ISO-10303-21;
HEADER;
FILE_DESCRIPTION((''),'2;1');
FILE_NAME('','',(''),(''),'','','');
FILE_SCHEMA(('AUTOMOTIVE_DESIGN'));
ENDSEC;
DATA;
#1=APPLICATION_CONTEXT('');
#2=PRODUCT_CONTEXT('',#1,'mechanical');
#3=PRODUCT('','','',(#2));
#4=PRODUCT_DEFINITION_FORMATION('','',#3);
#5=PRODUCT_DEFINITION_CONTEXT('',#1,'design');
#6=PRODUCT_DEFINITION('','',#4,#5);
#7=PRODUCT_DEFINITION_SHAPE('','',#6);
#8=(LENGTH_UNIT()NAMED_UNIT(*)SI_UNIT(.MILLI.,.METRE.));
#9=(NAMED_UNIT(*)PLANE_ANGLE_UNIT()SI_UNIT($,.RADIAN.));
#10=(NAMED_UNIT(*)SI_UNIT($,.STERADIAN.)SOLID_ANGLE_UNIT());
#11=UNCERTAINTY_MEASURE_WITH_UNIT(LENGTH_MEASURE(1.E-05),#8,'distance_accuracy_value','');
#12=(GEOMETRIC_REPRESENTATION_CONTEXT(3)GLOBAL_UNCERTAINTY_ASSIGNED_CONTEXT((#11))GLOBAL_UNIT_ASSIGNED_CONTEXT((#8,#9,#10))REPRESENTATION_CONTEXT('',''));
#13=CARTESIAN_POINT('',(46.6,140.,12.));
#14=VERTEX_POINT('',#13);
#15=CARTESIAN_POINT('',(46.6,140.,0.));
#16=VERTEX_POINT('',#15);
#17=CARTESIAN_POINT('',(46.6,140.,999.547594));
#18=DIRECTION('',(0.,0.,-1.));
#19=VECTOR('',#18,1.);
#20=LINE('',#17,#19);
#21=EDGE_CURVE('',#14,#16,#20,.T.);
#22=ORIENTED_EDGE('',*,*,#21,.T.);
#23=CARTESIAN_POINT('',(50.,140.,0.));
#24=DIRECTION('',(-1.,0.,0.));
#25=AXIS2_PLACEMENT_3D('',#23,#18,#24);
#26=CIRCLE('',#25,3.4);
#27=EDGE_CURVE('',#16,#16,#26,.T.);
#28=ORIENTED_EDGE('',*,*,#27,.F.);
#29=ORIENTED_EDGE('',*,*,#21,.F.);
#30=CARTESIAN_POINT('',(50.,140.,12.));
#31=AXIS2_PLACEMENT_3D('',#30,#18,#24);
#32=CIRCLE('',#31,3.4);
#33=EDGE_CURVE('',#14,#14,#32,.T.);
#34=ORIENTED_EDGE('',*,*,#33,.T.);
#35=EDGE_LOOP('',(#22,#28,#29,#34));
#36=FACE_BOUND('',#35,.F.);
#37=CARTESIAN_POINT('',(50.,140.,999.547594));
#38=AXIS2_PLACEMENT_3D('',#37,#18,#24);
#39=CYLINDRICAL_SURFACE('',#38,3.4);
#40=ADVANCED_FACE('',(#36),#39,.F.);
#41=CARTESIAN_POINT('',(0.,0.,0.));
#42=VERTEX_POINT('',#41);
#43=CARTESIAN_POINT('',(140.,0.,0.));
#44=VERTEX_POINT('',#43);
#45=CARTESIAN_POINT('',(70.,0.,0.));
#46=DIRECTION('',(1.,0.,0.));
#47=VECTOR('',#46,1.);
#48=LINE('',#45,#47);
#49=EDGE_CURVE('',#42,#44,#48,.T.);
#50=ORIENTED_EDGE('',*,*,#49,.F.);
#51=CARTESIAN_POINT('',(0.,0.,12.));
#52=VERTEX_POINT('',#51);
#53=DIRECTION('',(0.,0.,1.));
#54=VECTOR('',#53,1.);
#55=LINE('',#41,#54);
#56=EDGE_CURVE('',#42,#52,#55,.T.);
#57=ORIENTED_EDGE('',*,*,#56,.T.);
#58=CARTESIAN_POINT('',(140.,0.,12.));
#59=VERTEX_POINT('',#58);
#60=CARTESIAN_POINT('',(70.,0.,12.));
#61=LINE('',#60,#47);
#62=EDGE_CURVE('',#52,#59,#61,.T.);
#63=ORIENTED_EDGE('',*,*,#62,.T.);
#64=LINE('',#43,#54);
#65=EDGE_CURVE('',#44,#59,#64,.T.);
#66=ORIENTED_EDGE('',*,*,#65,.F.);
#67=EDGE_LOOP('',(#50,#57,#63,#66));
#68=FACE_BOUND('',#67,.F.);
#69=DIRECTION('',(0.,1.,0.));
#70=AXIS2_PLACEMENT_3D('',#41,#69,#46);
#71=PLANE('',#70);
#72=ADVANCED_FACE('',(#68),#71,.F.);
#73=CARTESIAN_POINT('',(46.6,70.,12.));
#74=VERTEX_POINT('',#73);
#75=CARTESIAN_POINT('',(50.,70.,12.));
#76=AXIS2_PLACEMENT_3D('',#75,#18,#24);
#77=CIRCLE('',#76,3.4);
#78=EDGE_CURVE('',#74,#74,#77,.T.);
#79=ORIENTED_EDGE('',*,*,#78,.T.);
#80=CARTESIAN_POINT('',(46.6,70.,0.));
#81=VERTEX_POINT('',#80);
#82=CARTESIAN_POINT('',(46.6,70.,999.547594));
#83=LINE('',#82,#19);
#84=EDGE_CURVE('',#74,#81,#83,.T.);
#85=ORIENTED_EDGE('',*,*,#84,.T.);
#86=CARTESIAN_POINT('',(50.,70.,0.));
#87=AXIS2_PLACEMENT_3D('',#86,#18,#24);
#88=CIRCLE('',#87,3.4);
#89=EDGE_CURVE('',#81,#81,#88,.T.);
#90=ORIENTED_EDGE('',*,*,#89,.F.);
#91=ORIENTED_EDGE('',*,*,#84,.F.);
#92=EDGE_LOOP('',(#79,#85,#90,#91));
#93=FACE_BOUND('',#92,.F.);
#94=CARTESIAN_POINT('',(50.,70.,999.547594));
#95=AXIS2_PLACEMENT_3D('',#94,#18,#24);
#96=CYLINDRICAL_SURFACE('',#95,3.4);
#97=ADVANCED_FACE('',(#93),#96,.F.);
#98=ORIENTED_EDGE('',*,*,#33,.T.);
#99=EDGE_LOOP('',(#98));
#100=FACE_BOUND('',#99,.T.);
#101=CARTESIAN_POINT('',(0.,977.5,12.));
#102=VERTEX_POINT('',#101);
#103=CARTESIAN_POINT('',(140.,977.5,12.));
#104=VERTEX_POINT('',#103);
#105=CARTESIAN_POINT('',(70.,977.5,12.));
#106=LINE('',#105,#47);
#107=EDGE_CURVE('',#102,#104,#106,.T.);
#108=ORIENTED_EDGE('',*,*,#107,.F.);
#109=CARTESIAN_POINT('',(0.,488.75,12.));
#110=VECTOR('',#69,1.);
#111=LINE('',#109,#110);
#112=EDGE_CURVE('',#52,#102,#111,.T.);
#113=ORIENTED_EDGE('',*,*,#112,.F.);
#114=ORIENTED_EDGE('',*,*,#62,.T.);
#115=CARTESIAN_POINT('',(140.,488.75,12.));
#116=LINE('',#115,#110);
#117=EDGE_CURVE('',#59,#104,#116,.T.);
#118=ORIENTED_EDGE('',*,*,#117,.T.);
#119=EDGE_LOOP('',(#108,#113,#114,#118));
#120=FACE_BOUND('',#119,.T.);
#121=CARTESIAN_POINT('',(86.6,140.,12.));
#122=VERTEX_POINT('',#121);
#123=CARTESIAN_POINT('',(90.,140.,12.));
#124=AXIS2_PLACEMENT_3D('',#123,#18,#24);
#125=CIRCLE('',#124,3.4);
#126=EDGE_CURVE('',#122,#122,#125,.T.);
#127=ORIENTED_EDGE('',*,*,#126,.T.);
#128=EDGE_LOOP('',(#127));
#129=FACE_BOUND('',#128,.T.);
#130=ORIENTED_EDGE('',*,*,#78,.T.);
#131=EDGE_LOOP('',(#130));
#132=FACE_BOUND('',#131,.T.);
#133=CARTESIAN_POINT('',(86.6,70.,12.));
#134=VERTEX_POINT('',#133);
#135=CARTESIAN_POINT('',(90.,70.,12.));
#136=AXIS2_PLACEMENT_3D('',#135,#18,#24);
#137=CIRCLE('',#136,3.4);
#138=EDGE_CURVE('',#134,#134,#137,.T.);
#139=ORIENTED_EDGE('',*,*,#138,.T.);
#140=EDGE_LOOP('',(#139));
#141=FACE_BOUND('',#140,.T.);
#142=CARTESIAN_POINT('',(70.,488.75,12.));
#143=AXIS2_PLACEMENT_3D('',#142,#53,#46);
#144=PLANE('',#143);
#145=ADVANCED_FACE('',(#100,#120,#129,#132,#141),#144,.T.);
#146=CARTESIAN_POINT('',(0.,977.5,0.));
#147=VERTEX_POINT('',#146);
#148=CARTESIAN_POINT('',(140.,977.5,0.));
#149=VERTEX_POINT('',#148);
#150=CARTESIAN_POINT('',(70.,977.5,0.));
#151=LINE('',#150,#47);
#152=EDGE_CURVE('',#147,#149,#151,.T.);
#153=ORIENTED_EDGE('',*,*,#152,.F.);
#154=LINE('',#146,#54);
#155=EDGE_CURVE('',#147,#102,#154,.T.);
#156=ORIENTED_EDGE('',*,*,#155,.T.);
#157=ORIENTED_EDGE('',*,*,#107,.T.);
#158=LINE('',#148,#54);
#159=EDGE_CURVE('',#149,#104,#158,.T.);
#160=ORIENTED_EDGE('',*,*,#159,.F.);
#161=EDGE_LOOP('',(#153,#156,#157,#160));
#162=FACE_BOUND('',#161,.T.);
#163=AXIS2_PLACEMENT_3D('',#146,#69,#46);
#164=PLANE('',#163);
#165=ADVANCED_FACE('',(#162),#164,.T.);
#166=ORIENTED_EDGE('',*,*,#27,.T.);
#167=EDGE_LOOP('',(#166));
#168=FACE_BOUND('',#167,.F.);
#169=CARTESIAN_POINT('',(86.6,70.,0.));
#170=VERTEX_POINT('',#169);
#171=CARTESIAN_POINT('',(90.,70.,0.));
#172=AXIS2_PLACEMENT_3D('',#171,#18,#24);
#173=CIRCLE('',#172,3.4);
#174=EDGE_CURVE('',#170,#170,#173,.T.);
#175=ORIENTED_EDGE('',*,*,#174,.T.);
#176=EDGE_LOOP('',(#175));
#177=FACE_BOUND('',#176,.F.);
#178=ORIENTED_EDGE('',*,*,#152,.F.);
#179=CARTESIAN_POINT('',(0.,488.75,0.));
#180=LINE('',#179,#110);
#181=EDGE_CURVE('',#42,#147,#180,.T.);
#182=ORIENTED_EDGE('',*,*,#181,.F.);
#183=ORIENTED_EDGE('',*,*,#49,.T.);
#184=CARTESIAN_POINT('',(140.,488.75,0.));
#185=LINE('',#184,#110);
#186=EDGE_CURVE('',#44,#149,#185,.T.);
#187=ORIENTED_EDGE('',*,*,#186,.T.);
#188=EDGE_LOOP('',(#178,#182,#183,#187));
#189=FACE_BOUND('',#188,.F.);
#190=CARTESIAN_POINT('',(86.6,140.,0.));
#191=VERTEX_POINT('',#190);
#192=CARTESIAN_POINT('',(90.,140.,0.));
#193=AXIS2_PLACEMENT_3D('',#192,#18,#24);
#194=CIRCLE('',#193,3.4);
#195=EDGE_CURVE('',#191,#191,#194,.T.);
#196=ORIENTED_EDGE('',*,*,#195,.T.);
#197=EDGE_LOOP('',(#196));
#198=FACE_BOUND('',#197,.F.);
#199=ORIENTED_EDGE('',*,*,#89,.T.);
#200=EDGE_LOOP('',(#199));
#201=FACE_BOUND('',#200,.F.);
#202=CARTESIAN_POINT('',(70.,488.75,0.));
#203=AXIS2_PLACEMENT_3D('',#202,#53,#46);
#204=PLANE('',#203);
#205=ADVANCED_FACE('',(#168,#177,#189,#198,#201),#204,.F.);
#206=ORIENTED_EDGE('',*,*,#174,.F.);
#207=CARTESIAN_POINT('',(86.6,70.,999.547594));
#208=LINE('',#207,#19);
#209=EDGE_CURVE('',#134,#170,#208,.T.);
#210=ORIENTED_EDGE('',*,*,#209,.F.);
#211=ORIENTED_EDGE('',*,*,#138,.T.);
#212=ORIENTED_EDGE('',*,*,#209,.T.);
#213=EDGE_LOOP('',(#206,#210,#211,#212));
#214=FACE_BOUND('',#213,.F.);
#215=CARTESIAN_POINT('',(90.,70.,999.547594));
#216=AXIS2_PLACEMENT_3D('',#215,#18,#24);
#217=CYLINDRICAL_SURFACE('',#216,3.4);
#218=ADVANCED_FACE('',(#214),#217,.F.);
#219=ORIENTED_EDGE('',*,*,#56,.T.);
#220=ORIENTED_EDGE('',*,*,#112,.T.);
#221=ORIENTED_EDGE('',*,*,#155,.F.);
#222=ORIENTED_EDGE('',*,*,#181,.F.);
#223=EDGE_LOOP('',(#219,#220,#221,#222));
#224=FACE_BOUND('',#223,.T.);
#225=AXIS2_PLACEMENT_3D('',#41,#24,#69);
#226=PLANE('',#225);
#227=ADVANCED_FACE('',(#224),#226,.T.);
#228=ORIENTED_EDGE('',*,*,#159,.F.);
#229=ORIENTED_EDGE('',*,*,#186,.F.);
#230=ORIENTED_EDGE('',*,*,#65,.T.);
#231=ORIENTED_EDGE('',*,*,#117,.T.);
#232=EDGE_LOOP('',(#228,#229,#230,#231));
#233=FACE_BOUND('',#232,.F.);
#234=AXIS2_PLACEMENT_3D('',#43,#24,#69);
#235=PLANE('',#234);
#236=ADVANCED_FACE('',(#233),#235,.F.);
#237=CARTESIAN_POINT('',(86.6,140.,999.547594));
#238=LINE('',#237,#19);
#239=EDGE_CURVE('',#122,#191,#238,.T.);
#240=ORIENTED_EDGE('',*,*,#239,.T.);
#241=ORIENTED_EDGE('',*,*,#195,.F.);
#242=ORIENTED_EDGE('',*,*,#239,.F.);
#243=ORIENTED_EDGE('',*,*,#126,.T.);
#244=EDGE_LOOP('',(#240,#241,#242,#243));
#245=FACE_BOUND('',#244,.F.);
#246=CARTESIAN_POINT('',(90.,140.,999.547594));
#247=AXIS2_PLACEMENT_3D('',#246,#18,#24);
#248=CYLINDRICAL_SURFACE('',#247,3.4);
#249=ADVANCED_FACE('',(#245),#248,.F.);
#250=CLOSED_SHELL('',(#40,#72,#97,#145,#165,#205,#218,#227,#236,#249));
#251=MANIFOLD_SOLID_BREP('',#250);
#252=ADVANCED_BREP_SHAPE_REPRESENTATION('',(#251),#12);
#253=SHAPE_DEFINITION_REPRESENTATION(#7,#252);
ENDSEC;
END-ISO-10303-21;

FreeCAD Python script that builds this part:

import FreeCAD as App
import Part
import Sketcher
Q = App.Units.Quantity


def add_polygon(sketch, points):
    """Adds a closed chain of lines whose ends are joined by coincident constraints."""
    first, n = sketch.GeometryCount, len(points)
    for a, b in zip(points, points[1:] + points[:1]):
        sketch.addGeometry(Part.LineSegment(App.Vector(*a, 0), App.Vector(*b, 0)), False)
    for i in range(n):
        sketch.addConstraint(Sketcher.Constraint("Coincident", first + i, 2, first + (i + 1) % n, 1))

doc = App.newDocument("Part")
body = doc.addObject("PartDesign::Body", "Body")

# Sketch on XY plane
sketch1 = body.newObject("Sketcher::SketchObject", "Sketch")
sketch1.AttachmentSupport = (doc.getObject("XY_Plane"), [""])
sketch1.MapMode = "FlatFace"
add_polygon(sketch1, [(0, 978), (0, 0), (140, 0), (140, 978)])  # lines 0-3
sketch1.addConstraint([
    Sketcher.Constraint("Vertical", 0),
    Sketcher.Constraint("Horizontal", 1),
    Sketcher.Constraint("Vertical", 2),
    Sketcher.Constraint("Horizontal", 3),
    Sketcher.Constraint("Coincident", 0, 2, -1, 1),
    Sketcher.Constraint("DistanceX", 1, 1, 1, 2, Q("140 mm")),
    Sketcher.Constraint("DistanceY", 0, 2, 0, 1, Q("977.5 mm")),
])
pad1 = body.newObject("PartDesign::Pad", "Pad")
pad1.Profile = sketch1
pad1.Length = 12

# Sketch on XY plane
sketch2 = body.newObject("Sketcher::SketchObject", "Sketch001")
sketch2.AttachmentSupport = (doc.getObject("XY_Plane"), [""])
sketch2.MapMode = "FlatFace"
sketch2.AttachmentOffset = App.Placement(App.Vector(0, 0, 12), App.Rotation())
sketch2.addGeometry([
    Part.Circle(App.Vector(50, 140, 0), App.Vector(0, 0, 1), 3.4),
    Part.Circle(App.Vector(90, 140, 0), App.Vector(0, 0, 1), 3.4),
    Part.Circle(App.Vector(90, 70, 0), App.Vector(0, 0, 1), 3.4),
    Part.Circle(App.Vector(50, 70, 0), App.Vector(0, 0, 1), 3.4),
], False)
sketch2.addConstraint([
    Sketcher.Constraint("Equal", 0, 1),
    Sketcher.Constraint("Equal", 1, 2),
    Sketcher.Constraint("Equal", 2, 3),
    Sketcher.Constraint("Horizontal", 0, 3, 1, 3),
    Sketcher.Constraint("Horizontal", 2, 3, 3, 3),
    Sketcher.Constraint("Vertical", 1, 3, 2, 3),
    Sketcher.Constraint("Vertical", 0, 3, 3, 3),
    Sketcher.Constraint("Diameter", 0, Q("6.8 mm")),
    Sketcher.Constraint("DistanceX", -1, 1, 0, 3, Q("50 mm")),
    Sketcher.Constraint("DistanceY", -1, 1, 0, 3, Q("140 mm")),
    Sketcher.Constraint("DistanceX", -1, 1, 1, 3, Q("90 mm")),
    Sketcher.Constraint("DistanceY", -1, 1, 2, 3, Q("70 mm")),
])
doc.recompute()
hole = body.newObject("PartDesign::Hole", "Hole")
hole.Profile = sketch2
hole.ThreadType = "None"
hole.Diameter = 6.8
hole.DepthType = "ThroughAll"

doc.recompute()
